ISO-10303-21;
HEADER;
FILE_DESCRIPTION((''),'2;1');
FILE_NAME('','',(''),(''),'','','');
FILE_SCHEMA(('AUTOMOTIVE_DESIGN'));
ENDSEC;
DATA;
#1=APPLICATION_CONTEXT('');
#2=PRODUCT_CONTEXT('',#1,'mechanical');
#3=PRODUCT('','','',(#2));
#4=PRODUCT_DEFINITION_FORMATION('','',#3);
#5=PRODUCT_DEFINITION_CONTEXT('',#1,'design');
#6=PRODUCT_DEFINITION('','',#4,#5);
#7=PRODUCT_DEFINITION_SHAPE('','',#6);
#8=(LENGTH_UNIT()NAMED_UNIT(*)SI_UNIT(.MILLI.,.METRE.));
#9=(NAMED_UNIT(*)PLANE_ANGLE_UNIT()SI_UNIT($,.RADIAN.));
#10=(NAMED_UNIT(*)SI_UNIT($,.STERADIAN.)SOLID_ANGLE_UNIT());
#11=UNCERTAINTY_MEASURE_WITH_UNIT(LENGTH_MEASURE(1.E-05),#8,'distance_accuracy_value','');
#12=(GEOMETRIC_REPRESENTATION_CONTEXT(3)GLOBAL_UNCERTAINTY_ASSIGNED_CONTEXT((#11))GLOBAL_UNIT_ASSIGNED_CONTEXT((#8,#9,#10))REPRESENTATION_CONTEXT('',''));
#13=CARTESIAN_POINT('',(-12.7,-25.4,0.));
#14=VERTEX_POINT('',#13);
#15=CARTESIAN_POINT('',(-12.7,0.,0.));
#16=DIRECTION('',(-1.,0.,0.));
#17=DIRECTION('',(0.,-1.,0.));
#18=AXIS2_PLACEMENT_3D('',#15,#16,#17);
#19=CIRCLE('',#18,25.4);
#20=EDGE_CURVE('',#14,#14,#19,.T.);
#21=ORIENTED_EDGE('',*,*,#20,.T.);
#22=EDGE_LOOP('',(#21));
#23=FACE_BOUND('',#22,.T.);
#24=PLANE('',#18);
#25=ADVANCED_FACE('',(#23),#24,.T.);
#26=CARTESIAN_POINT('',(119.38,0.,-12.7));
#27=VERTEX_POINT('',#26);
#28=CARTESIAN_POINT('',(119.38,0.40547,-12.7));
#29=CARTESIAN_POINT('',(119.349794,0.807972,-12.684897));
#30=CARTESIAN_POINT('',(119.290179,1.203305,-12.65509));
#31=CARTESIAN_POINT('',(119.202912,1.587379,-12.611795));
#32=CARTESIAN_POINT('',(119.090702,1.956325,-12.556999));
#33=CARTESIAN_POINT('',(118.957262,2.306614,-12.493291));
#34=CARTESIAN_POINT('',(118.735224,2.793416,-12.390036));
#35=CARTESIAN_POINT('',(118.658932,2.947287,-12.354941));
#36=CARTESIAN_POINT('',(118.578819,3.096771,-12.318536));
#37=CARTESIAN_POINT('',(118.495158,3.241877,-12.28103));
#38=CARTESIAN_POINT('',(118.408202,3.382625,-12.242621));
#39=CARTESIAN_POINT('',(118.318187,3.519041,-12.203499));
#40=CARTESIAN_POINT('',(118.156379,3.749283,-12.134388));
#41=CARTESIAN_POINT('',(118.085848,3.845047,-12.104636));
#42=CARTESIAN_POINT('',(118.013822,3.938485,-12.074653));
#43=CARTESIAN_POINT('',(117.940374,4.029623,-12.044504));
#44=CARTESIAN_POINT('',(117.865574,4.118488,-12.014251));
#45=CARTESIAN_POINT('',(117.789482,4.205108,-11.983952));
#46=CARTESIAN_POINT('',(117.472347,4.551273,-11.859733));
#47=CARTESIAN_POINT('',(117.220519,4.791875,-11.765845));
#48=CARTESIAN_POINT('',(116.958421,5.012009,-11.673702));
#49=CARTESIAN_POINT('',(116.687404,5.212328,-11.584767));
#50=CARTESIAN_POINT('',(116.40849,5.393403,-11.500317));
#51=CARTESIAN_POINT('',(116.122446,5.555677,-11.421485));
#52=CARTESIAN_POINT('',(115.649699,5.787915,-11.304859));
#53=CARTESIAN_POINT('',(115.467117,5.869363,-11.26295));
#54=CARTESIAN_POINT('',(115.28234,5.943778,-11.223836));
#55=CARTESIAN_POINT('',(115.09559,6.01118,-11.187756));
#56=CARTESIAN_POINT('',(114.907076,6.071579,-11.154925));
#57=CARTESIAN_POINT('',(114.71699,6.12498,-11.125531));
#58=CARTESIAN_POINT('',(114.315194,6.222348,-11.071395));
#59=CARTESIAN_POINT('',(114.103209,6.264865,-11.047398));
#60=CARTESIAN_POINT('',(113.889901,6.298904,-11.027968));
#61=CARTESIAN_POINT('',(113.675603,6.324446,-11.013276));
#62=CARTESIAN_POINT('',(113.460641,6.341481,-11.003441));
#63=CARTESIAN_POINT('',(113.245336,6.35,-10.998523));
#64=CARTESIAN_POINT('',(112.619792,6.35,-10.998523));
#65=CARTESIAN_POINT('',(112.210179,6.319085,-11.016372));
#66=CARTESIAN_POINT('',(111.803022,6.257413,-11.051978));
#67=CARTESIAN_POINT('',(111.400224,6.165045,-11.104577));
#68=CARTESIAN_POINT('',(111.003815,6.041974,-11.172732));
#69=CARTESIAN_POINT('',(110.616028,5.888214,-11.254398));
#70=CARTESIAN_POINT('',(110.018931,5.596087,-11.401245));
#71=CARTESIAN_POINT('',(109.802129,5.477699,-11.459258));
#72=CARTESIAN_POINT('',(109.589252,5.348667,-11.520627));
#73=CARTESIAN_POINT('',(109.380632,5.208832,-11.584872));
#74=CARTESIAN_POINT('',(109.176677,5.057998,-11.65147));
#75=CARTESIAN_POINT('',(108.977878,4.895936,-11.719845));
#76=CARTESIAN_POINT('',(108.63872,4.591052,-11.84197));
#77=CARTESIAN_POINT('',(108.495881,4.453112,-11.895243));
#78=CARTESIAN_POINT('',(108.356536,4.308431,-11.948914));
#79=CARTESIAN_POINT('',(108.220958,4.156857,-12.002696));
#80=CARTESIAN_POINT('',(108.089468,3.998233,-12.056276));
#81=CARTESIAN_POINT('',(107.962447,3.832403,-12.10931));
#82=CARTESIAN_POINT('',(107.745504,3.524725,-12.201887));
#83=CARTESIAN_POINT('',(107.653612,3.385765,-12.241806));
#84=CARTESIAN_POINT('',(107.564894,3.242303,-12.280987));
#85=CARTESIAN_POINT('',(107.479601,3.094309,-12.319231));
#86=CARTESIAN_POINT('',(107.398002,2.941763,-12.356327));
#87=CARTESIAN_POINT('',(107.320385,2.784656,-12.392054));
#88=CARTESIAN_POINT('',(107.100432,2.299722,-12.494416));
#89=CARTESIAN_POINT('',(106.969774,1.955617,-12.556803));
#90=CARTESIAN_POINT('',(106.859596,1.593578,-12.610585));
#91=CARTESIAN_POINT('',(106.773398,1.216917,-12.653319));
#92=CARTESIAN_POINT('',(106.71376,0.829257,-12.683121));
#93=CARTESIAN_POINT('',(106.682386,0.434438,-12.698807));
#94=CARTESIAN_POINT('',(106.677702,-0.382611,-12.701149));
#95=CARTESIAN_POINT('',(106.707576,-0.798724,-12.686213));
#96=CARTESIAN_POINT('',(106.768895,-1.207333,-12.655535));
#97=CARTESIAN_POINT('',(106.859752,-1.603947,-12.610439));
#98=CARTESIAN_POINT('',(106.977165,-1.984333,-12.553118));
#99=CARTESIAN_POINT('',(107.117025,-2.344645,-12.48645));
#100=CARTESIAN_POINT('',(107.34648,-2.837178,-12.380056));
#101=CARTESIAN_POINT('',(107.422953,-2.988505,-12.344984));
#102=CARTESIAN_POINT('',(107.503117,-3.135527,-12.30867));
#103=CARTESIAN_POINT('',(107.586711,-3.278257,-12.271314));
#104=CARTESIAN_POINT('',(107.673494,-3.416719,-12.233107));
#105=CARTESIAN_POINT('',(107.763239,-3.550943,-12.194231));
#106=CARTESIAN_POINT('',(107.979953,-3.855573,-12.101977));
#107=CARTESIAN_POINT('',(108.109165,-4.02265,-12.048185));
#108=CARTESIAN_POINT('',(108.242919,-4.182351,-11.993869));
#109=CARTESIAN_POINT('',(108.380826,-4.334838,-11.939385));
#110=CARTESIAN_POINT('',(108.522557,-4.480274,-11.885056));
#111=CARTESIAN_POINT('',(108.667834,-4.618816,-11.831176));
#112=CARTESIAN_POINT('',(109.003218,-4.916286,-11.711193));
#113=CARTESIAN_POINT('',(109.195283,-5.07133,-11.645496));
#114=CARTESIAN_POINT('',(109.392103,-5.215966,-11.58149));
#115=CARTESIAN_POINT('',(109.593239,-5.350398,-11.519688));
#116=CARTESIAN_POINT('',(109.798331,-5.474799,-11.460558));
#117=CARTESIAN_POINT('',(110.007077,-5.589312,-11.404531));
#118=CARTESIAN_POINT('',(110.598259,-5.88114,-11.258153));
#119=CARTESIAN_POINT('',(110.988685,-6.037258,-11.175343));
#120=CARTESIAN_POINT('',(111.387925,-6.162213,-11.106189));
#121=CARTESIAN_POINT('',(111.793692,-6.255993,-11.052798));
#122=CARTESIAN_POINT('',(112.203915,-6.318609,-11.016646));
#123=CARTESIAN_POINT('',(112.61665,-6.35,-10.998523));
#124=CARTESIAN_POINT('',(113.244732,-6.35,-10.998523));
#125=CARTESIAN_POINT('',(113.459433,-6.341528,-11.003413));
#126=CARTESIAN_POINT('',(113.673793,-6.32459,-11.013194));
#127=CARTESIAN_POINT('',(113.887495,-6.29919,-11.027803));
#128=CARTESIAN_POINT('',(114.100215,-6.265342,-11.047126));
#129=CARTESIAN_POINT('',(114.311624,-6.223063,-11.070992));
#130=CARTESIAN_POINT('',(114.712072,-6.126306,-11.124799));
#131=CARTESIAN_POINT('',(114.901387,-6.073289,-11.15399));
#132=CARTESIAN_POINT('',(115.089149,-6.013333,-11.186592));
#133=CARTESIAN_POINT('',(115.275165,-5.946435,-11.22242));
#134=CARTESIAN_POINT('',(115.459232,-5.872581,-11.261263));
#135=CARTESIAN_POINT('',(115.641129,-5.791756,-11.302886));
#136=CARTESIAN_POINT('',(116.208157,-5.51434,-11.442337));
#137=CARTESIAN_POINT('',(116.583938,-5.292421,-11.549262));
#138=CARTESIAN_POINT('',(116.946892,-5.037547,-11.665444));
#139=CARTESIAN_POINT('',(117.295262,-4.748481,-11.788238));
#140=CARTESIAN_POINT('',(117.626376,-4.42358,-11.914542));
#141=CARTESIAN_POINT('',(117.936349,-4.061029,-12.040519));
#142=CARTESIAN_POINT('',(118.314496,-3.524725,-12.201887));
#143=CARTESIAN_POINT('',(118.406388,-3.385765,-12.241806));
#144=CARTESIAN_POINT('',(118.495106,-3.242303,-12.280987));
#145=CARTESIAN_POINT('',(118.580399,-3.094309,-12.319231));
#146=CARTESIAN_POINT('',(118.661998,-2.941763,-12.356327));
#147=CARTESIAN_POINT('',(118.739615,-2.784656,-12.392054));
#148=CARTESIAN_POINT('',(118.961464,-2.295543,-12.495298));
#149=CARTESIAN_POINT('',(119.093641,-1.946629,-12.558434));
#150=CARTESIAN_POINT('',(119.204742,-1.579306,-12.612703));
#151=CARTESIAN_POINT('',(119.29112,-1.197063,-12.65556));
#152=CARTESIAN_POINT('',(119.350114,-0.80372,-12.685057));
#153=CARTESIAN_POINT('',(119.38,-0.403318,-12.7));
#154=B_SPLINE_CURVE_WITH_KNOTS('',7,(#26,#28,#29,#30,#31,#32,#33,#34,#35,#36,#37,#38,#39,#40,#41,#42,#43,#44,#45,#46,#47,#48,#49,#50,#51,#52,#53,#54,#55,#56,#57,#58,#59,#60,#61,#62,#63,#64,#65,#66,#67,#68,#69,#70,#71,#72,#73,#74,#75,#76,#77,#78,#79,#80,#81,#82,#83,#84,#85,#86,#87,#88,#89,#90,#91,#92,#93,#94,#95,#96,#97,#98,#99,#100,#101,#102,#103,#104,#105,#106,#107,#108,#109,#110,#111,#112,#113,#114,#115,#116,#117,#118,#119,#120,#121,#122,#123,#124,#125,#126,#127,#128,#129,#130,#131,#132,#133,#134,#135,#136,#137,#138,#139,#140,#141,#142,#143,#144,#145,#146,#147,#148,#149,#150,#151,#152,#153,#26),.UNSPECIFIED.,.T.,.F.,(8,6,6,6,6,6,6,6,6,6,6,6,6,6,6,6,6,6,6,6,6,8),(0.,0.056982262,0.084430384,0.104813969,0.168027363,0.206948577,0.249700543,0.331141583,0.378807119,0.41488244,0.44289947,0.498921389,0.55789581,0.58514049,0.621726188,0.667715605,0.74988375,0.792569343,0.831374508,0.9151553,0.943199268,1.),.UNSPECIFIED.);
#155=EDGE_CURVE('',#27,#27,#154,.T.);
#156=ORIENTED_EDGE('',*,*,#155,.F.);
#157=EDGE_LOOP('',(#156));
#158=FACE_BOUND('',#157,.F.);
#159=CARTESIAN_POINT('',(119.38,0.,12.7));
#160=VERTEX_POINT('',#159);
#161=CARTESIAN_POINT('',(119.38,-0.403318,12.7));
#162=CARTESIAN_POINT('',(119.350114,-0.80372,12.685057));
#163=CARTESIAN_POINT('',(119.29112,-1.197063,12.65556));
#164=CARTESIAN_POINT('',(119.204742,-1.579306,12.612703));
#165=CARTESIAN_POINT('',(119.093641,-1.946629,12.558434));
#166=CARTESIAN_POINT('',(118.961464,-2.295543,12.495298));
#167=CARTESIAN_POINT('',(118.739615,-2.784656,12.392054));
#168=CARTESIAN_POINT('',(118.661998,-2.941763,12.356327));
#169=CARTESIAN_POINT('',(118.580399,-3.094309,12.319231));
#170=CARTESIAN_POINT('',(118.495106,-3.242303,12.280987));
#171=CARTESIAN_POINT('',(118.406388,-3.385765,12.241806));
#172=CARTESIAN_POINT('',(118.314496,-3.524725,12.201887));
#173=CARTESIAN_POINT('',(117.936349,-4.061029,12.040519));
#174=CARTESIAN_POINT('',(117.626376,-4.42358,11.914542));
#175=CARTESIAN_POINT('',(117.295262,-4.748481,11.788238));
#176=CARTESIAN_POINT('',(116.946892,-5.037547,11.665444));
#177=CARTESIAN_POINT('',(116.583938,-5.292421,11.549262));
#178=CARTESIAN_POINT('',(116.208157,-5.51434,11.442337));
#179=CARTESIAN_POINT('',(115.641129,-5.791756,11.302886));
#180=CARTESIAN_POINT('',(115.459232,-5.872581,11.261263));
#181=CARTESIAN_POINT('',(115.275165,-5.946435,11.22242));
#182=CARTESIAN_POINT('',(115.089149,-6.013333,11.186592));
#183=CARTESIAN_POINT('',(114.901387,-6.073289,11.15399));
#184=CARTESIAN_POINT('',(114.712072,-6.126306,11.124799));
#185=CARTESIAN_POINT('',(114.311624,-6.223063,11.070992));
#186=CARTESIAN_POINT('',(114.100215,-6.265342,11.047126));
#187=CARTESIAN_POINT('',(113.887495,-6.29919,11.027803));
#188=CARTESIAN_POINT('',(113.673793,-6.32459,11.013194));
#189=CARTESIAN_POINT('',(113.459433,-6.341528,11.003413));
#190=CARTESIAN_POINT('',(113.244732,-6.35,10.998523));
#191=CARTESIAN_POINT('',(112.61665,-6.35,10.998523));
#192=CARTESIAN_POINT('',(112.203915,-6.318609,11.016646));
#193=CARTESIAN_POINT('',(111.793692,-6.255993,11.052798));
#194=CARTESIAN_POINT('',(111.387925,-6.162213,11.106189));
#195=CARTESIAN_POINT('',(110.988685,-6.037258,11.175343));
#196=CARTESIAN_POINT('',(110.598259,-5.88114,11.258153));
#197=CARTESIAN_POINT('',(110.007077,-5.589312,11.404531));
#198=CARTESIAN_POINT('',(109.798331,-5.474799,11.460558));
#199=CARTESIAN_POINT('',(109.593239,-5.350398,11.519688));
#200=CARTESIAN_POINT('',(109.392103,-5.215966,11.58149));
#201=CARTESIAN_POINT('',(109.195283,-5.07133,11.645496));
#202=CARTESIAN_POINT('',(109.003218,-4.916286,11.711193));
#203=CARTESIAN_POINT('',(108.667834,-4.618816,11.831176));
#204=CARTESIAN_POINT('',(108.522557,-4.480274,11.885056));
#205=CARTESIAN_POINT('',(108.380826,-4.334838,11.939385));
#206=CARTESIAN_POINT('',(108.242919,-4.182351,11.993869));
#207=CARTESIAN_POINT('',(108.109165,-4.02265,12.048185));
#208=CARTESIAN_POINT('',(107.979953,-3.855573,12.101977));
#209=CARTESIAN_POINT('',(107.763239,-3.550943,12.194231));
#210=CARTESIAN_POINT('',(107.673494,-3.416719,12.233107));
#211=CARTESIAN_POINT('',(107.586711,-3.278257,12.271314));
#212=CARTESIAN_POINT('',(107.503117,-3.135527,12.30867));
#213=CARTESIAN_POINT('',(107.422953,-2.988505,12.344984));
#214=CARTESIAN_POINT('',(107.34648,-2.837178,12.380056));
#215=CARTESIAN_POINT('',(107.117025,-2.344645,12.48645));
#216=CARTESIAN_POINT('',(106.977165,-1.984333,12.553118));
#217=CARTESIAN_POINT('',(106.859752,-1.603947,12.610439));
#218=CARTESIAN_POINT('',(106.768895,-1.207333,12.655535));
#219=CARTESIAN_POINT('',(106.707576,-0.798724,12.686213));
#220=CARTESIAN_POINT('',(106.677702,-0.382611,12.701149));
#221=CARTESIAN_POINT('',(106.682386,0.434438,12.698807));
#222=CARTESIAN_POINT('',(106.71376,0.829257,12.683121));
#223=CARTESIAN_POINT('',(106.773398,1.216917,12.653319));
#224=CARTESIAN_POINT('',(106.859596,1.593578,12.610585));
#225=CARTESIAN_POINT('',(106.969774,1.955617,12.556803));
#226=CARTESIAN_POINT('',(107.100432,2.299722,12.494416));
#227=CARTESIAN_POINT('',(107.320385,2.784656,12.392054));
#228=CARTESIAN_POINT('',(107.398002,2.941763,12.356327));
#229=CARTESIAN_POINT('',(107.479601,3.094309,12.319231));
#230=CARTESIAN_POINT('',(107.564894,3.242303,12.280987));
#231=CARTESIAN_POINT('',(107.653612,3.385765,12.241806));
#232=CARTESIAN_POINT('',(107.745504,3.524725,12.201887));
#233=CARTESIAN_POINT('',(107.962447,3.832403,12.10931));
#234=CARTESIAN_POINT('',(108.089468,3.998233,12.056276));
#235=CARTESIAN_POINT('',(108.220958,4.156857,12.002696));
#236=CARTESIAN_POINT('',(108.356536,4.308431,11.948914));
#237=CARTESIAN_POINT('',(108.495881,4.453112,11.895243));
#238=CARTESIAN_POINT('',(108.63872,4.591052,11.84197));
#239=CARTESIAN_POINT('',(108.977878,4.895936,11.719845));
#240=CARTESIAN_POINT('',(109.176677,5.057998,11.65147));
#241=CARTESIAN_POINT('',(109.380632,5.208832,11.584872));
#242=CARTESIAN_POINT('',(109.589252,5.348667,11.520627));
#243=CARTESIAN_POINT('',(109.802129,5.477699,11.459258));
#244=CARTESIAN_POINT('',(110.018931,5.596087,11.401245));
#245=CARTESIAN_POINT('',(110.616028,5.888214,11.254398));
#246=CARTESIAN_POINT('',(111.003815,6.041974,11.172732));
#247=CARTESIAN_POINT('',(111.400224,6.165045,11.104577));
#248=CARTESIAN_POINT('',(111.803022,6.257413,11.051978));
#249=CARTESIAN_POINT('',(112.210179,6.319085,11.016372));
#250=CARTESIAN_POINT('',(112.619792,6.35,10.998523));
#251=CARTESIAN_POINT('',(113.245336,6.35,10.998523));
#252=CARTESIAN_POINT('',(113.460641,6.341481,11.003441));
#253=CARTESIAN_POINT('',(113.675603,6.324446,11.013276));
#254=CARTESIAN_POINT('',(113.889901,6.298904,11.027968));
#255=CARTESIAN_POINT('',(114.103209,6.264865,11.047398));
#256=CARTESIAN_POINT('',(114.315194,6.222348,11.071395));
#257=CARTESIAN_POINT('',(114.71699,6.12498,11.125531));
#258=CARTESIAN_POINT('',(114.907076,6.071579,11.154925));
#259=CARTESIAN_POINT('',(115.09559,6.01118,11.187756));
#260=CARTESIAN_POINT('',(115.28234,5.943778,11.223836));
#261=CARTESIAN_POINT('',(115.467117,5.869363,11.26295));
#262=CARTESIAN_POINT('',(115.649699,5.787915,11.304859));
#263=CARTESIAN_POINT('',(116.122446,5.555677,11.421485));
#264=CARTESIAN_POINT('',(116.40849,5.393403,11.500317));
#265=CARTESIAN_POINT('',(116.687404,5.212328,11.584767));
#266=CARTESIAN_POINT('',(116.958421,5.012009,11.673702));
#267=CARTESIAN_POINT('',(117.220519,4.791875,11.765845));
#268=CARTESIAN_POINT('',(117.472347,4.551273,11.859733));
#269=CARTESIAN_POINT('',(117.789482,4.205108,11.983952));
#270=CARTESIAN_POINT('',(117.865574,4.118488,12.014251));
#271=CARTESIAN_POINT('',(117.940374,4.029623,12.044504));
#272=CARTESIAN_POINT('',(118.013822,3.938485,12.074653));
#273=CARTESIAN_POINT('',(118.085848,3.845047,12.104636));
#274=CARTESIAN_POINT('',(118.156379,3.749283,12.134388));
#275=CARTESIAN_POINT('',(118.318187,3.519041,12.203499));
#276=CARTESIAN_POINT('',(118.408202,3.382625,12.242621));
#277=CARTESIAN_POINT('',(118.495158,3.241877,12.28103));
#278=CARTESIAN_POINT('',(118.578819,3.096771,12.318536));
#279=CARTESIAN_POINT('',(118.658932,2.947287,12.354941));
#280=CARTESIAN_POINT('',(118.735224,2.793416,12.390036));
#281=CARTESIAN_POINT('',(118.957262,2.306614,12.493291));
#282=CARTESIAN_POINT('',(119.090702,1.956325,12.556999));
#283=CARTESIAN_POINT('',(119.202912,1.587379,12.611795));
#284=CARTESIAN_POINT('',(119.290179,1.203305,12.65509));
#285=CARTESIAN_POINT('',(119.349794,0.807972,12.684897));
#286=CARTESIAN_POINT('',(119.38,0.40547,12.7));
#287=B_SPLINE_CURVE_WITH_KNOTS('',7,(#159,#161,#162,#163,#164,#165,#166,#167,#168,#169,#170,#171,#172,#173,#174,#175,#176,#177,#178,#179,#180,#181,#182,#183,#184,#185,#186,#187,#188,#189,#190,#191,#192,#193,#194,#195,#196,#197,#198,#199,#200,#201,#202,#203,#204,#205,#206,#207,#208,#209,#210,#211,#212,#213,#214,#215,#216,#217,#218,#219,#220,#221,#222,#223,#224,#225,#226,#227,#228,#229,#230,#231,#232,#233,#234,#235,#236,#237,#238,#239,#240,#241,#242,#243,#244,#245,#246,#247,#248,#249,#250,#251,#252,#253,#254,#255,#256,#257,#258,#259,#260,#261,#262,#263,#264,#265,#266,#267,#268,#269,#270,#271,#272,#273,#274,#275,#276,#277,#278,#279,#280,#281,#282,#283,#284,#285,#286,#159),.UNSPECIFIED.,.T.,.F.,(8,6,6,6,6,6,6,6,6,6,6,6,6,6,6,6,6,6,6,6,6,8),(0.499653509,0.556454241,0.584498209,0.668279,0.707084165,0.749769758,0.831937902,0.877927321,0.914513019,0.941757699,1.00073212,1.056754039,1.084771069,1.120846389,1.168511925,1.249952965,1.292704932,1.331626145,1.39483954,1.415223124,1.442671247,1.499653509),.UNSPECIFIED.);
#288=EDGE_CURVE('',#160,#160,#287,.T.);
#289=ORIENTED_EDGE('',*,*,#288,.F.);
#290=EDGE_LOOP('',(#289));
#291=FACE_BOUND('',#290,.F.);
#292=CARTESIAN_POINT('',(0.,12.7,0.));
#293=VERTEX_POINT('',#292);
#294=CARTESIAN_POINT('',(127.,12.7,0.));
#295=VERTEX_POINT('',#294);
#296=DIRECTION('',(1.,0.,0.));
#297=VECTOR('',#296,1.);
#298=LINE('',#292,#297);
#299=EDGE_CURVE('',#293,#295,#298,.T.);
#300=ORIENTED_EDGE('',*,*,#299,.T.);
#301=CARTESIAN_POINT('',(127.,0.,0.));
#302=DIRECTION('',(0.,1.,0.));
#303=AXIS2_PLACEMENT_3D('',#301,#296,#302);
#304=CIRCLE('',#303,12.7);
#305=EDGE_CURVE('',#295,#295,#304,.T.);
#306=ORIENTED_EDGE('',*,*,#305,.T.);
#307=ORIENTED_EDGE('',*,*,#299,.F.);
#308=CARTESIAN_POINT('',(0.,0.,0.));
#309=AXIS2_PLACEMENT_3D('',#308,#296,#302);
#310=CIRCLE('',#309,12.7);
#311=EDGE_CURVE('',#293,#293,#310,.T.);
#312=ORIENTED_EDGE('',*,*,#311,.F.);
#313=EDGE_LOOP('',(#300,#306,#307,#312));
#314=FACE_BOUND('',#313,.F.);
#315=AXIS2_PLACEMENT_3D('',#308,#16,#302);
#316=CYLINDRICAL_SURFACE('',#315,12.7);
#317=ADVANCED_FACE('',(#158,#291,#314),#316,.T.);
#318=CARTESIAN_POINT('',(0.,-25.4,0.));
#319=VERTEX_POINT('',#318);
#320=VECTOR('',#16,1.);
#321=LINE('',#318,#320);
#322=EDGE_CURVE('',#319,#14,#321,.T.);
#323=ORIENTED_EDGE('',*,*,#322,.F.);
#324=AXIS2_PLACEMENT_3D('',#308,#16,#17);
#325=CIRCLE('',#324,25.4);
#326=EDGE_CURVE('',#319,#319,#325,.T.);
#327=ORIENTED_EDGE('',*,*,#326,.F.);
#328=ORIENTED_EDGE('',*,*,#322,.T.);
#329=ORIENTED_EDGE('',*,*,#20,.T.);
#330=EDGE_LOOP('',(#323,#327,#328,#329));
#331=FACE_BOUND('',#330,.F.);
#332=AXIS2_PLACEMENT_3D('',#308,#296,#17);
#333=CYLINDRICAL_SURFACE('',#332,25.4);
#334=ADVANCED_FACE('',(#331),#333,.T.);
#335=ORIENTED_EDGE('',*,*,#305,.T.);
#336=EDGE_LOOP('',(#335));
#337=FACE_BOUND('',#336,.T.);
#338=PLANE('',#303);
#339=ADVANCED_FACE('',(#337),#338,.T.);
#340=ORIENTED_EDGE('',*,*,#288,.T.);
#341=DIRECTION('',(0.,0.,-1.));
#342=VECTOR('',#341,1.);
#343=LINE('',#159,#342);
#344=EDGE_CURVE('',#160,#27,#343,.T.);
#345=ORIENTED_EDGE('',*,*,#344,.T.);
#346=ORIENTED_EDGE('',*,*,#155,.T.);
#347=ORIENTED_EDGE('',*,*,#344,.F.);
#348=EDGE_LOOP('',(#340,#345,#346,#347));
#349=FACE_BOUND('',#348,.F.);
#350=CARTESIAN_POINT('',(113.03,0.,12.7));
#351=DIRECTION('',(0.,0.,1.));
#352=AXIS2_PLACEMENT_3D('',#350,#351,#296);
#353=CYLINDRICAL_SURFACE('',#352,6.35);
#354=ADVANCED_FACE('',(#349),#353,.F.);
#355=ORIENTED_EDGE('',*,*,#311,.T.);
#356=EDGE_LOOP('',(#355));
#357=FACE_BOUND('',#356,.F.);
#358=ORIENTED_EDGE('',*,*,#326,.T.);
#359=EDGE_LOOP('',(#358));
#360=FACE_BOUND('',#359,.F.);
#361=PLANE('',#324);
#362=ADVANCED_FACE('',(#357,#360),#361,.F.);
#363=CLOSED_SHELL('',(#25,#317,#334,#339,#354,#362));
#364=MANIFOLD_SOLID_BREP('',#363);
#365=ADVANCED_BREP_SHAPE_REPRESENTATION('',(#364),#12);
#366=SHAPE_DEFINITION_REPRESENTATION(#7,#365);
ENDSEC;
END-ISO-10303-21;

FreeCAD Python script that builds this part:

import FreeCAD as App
import Part
import Sketcher
Q = App.Units.Quantity

doc = App.newDocument("Part")
body = doc.addObject("PartDesign::Body", "Body")

# Sketch on YZ plane
sketch1 = body.newObject("Sketcher::SketchObject", "Sketch")
sketch1.AttachmentSupport = (doc.getObject("YZ_Plane"), [""])
sketch1.MapMode = "FlatFace"
sketch1.addGeometry(Part.Circle(App.Vector(0, 0, 0), App.Vector(0, 0, 1), 13), False)
sketch1.addConstraint([
    Sketcher.Constraint("Coincident", 0, 3, -1, 1),
    Sketcher.Constraint("Diameter", 0, Q("1 in")),
])
pad1 = body.newObject("PartDesign::Pad", "Pad")
pad1.Profile = sketch1
pad1.Length = Q("5 in")

# Sketch on YZ plane
sketch2 = body.newObject("Sketcher::SketchObject", "Sketch001")
sketch2.AttachmentSupport = (doc.getObject("YZ_Plane"), [""])
sketch2.MapMode = "FlatFace"
sketch2.addGeometry(Part.Circle(App.Vector(0, 0, 0), App.Vector(0, 0, 1), 25), False)
sketch2.addConstraint([
    Sketcher.Constraint("Coincident", 0, 3, -1, 1),
    Sketcher.Constraint("Diameter", 0, Q("2 in")),
])
pad2 = body.newObject("PartDesign::Pad", "Pad001")
pad2.Profile = sketch2
pad2.Length = Q("0.5 in")
pad2.Reversed = True

# Sketch on XY plane
sketch3 = body.newObject("Sketcher::SketchObject", "Sketch002")
sketch3.AttachmentSupport = (doc.getObject("XY_Plane"), [""])
sketch3.MapMode = "FlatFace"
sketch3.AttachmentOffset = App.Placement(App.Vector(0, 0, 0.5 * 25.4), App.Rotation())
sketch3.addGeometry(Part.Circle(App.Vector(113, 0, 0), App.Vector(0, 0, 1), 6), False)
sketch3.addConstraint([
    Sketcher.Constraint("PointOnObject", 0, 3, -1),
    Sketcher.Constraint("Diameter", 0, Q("0.5 in")),
    Sketcher.Constraint("DistanceX", -1, 1, 0, 3, Q("4.45 in")),
])
pocket1 = body.newObject("PartDesign::Pocket", "Pocket")
pocket1.Profile = sketch3
pocket1.Type = "ThroughAll"

doc.recompute()
